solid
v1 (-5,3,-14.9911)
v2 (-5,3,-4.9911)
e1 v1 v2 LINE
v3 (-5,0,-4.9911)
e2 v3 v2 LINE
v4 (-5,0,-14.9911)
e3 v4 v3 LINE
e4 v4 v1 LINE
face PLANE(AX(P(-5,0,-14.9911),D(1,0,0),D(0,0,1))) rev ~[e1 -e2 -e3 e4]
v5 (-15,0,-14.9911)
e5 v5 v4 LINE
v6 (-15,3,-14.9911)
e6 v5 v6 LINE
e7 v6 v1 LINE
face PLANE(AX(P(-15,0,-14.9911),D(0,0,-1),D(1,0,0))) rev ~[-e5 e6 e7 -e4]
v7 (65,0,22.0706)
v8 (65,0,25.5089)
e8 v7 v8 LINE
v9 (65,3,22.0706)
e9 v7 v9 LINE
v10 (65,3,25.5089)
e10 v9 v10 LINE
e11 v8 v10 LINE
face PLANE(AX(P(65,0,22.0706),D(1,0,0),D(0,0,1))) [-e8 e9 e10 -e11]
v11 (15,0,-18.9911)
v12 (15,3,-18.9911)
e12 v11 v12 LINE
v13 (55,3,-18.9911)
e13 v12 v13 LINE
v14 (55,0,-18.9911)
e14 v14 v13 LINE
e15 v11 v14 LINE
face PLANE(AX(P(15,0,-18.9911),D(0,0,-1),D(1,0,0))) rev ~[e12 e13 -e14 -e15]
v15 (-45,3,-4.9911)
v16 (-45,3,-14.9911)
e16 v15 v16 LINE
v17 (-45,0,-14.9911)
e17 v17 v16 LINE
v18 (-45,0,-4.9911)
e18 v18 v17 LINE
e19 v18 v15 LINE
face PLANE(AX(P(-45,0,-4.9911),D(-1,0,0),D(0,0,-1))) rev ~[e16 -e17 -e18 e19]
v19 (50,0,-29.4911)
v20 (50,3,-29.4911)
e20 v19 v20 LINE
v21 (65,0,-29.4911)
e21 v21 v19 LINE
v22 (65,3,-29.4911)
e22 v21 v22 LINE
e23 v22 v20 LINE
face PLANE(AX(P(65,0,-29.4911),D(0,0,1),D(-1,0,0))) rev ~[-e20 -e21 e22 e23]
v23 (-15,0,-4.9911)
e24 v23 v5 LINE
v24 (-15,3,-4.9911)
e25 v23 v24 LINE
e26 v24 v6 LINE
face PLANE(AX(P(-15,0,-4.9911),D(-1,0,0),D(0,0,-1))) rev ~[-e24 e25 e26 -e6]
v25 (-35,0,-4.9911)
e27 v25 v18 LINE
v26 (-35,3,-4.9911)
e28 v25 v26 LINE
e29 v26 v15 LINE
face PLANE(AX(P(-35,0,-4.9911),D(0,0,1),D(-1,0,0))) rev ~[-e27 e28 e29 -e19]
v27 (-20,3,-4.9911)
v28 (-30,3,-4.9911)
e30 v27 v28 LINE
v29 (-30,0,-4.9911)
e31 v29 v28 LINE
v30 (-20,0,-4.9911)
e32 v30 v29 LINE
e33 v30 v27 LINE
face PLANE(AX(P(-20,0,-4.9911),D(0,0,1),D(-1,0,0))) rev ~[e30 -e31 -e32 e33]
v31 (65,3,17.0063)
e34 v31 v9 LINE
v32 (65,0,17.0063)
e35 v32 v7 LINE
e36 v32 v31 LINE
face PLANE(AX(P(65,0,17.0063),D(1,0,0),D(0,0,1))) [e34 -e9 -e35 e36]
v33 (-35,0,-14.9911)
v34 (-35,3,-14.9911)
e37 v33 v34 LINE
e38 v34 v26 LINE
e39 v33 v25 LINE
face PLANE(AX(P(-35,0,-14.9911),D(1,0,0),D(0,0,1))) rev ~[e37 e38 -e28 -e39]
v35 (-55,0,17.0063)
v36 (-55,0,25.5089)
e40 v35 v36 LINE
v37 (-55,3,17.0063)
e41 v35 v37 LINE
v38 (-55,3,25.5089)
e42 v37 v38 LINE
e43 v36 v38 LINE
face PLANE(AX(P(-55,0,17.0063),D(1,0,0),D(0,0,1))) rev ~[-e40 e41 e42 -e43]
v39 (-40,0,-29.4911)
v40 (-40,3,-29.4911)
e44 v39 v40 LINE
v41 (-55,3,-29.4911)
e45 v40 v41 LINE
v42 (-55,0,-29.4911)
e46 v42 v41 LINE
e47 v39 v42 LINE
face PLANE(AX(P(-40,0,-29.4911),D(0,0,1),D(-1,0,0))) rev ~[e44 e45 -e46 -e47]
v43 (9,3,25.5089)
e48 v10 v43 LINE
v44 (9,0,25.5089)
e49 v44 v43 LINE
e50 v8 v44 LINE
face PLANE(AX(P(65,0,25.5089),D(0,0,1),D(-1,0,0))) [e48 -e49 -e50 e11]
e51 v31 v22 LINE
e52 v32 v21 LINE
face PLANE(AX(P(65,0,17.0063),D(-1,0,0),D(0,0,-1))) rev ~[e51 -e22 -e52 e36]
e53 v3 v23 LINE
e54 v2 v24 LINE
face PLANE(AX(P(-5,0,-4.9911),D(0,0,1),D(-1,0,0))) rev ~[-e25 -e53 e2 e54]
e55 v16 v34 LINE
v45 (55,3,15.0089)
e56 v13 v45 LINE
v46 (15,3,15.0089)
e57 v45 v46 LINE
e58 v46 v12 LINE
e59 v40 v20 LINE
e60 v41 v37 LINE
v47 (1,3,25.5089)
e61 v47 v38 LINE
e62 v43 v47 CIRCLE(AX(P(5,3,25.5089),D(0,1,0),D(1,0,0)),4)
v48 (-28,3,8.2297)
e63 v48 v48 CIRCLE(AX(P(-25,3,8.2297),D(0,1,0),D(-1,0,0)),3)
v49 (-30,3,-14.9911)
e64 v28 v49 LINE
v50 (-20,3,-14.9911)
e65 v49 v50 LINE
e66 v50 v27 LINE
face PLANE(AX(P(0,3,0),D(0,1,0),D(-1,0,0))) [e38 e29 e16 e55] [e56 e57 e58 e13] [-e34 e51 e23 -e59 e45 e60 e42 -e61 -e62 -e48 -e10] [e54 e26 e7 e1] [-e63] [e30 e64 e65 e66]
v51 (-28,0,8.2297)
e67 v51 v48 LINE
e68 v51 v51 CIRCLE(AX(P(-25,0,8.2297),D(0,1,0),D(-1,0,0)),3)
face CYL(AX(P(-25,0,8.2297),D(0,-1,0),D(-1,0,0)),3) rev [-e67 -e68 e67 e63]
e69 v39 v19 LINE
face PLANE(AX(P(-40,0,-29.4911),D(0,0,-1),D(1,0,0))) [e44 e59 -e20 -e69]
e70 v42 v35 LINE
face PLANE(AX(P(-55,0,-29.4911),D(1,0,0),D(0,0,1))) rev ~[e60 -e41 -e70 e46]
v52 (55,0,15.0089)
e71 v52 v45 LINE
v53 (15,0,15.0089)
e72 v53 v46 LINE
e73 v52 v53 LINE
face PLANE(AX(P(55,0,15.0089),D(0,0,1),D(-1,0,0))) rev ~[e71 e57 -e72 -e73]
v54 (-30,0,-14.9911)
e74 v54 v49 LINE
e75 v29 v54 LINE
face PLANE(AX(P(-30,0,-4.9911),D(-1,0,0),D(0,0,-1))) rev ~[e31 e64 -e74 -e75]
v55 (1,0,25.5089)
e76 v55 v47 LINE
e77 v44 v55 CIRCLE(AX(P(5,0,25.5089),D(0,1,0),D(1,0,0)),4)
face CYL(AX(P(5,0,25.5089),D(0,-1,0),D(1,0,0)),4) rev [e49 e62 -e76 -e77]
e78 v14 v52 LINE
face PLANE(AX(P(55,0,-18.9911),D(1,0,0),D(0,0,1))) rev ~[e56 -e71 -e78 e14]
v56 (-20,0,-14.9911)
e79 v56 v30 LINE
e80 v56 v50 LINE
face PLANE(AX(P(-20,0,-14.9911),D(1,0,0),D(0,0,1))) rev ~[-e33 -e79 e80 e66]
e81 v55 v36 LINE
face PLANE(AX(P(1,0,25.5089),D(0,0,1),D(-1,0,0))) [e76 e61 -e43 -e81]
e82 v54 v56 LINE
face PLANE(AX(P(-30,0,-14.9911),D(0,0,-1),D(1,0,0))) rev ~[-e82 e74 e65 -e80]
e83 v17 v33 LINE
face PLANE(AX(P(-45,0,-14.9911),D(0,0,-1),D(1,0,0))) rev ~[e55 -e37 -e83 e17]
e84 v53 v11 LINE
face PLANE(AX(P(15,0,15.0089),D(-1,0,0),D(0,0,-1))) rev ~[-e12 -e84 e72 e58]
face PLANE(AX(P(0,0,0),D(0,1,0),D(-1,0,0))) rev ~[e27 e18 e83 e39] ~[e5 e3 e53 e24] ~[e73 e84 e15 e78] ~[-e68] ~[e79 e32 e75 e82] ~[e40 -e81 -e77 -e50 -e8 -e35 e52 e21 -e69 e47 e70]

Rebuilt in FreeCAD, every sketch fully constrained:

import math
import FreeCAD as App
import Part
import Sketcher
from FreeCAD import Vector


def add_polygon(sketch, points):
    """Adds a closed chain of lines whose ends are joined by coincident constraints."""
    first, n = sketch.GeometryCount, len(points)
    for a, b in zip(points, points[1:] + points[:1]):
        sketch.addGeometry(Part.LineSegment(App.Vector(*a, 0), App.Vector(*b, 0)), False)
    for i in range(n):
        sketch.addConstraint(Sketcher.Constraint("Coincident", first + i, 2, first + (i + 1) % n, 1))

doc = App.newDocument("Part")
body = doc.addObject("PartDesign::Body", "Body")

sketch1 = body.newObject("Sketcher::SketchObject", "Sketch")
sketch1.AttachmentSupport = (doc.getObject("XZ_Plane"), [""])
sketch1.MapMode = "FlatFace"
sketch1.addGeometry(Part.LineSegment(Vector(65, -29.5, 0), Vector(-55, -29.5, 0)), False)
sketch1.addGeometry(Part.LineSegment(Vector(-55, -29.5, 0), Vector(-55, 25.5, 0)), False)
sketch1.addGeometry(Part.LineSegment(Vector(-55, 25.5, 0), Vector(1, 25.5, 0)), False)
sketch1.addGeometry(Part.ArcOfCircle(Part.Circle(Vector(5, 25.5, 0), Vector(0, 0, 1), 4), math.radians(180), math.radians(360)), False)
sketch1.addGeometry(Part.LineSegment(Vector(9, 25.5, 0), Vector(65, 25.5, 0)), False)
sketch1.addGeometry(Part.LineSegment(Vector(65, 25.5, 0), Vector(65, -29.5, 0)), False)
add_polygon(sketch1, [(-5, -15), (-5, -5), (-15, -5), (-15, -15)])
add_polygon(sketch1, [(-20, -15), (-20, -5), (-30, -5), (-30, -15)])
add_polygon(sketch1, [(-35, -15), (-35, -5), (-45, -5), (-45, -15)])
add_polygon(sketch1, [(55, -19), (55, 15), (15, 15), (15, -19)])
sketch1.addGeometry(Part.Circle(Vector(-25, 8.2, 0), Vector(0, 0, 1), 3), False)
sketch1.addConstraint([
    Sketcher.Constraint("Coincident", 0, 2, 1, 1),
    Sketcher.Constraint("Coincident", 1, 2, 2, 1),
    Sketcher.Constraint("Coincident", 2, 2, 3, 1),
    Sketcher.Constraint("Coincident", 3, 2, 4, 1),
    Sketcher.Constraint("Coincident", 4, 2, 5, 1),
    Sketcher.Constraint("Coincident", 5, 2, 0, 1),
    Sketcher.Constraint("Horizontal", 0),
    Sketcher.Constraint("Vertical", 1),
    Sketcher.Constraint("Horizontal", 2),
    Sketcher.Constraint("Horizontal", 4),
    Sketcher.Constraint("Vertical", 5),
    Sketcher.Constraint("Vertical", 6),
    Sketcher.Constraint("Horizontal", 7),
    Sketcher.Constraint("Vertical", 8),
    Sketcher.Constraint("Horizontal", 9),
    Sketcher.Constraint("Vertical", 10),
    Sketcher.Constraint("Horizontal", 11),
    Sketcher.Constraint("Vertical", 12),
    Sketcher.Constraint("Horizontal", 13),
    Sketcher.Constraint("Vertical", 14),
    Sketcher.Constraint("Horizontal", 15),
    Sketcher.Constraint("Vertical", 16),
    Sketcher.Constraint("Horizontal", 17),
    Sketcher.Constraint("Vertical", 18),
    Sketcher.Constraint("Horizontal", 19),
    Sketcher.Constraint("Vertical", 20),
    Sketcher.Constraint("Horizontal", 21),
    Sketcher.Constraint("Horizontal", 3, 3, 1, 2),
    Sketcher.Constraint("Horizontal", 2, 2, 3, 2),
    Sketcher.Constraint("Horizontal", 7, 2, 10, 2),
    Sketcher.Constraint("Horizontal", 9, 2, 12, 2),
    Sketcher.Constraint("Horizontal", 11, 2, 14, 2),
    Sketcher.Constraint("Horizontal", 13, 2, 16, 2),
    Sketcher.Constraint("Equal", 2, 4),
    Sketcher.Constraint("Equal", 9, 11),
    Sketcher.Constraint("Equal", 13, 15),
    Sketcher.Constraint("Equal", 17, 6),
    Sketcher.Constraint("Diameter", 22, 6.0),
    Sketcher.Constraint("Radius", 3, 4.0),
    Sketcher.Constraint("DistanceX", 7, 2, 7, 1, 10.0),
    Sketcher.Constraint("DistanceX", 19, 2, 19, 1, 40.0),
    Sketcher.Constraint("DistanceY", 1, 1, 1, 2, 55.0),
    Sketcher.Constraint("DistanceY", 18, 1, 18, 2, 34.0),
    Sketcher.Constraint("DistanceX", -1, 1, 3, 3, 5.0),
    Sketcher.Constraint("DistanceX", 0, 2, -1, 1, 55.0),
    Sketcher.Constraint("DistanceX", 6, 2, -1, 1, 5.0),
    Sketcher.Constraint("DistanceX", -1, 1, 18, 2, 55.0),
    Sketcher.Constraint("DistanceX", 22, 3, 3, 2, 34.0),
    Sketcher.Constraint("DistanceX", 10, 2, 7, 2, 5.0),
    Sketcher.Constraint("DistanceX", 14, 2, 11, 2, 5.0),
    Sketcher.Constraint("DistanceY", 20, 2, 9, 2, 4.0),
    Sketcher.Constraint("DistanceY", 0, 2, 8, 2, 14.5),
    Sketcher.Constraint("DistanceY", -1, 1, 3, 3, 25.509),
    Sketcher.Constraint("DistanceY", -1, 1, 22, 3, 8.2297),
])
pad1 = body.newObject("PartDesign::Pad", "Pad")
pad1.Profile = sketch1
pad1.Length = 3
pad1.Reversed = True

doc.recompute()
